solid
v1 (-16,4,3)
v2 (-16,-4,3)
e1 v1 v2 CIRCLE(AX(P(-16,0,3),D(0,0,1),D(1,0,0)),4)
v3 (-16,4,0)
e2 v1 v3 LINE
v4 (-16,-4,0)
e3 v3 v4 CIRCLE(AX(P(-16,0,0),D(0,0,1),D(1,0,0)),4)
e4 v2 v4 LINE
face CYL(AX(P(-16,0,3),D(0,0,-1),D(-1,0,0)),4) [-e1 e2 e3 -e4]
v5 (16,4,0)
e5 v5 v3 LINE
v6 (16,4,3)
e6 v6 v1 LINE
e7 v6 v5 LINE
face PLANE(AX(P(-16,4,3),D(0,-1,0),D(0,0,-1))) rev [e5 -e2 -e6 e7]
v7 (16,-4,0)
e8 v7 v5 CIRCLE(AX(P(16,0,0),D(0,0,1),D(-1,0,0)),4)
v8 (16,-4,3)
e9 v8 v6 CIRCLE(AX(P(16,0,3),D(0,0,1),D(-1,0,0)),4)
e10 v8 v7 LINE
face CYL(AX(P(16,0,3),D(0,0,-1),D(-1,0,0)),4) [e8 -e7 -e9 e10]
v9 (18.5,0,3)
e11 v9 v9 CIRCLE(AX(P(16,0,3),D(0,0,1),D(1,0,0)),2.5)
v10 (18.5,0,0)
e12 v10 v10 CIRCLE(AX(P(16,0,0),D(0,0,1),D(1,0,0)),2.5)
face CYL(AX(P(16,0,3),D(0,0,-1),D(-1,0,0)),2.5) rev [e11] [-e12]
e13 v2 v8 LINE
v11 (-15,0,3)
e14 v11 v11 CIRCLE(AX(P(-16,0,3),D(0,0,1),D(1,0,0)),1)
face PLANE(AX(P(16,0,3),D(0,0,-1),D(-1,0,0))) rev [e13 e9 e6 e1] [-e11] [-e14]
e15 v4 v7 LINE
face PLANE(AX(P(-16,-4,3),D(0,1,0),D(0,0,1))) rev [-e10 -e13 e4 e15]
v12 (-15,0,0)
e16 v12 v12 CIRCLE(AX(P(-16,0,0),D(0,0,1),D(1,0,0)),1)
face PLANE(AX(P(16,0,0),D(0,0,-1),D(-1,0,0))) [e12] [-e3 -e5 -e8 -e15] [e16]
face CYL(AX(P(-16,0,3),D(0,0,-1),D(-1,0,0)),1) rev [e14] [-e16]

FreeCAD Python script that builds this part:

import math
import FreeCAD as App
import Part
import Sketcher
Q = App.Units.Quantity

doc = App.newDocument("Part")
body = doc.addObject("PartDesign::Body", "Body")

# Sketch on XY plane
sketch1 = doc.addObject("Sketcher::SketchObject", "Sketch")
body.addObject(sketch1)
sketch1.AttachmentSupport = (doc.XY_Plane, [""])
sketch1.MapMode = "FlatFace"
sketch1.addGeometry([
    Part.LineSegment(App.Vector(16, 4, 0), App.Vector(-16, 4, 0)),  # 0
    Part.ArcOfCircle(Part.Circle(App.Vector(-16, 0, 0), App.Vector(0, 0, 1), 4), math.radians(90), math.radians(270)),  # 1
    Part.LineSegment(App.Vector(-16, -4, 0), App.Vector(16, -4, 0)),  # 2
    Part.ArcOfCircle(Part.Circle(App.Vector(16, 0, 0), App.Vector(0, 0, 1), 4), math.radians(-90), math.radians(90)),  # 3
    Part.Circle(App.Vector(16, 0, 0), App.Vector(0, 0, 1), 2.5),  # 4
    Part.Circle(App.Vector(-16, 0, 0), App.Vector(0, 0, 1), 1),  # 5
], False)
sketch1.addConstraint([
    Sketcher.Constraint("Tangent", 0, 2, 1, 1),
    Sketcher.Constraint("Tangent", 1, 2, 2, 1),
    Sketcher.Constraint("Tangent", 2, 2, 3, 1),
    Sketcher.Constraint("Tangent", 3, 2, 0, 1),
    Sketcher.Constraint("Horizontal", 0),
    Sketcher.Constraint("Horizontal", 2),
    Sketcher.Constraint("Coincident", 4, 3, 3, 3),
    Sketcher.Constraint("Coincident", 5, 3, 1, 3),
    Sketcher.Constraint("Symmetric", 1, 3, 3, 3, -1, 1),
    Sketcher.Constraint("Diameter", 4, Q("5 mm")),
    Sketcher.Constraint("Diameter", 5, Q("2 mm")),
    Sketcher.Constraint("Radius", 1, Q("4 mm")),
    Sketcher.Constraint("DistanceX", 0, 2, 0, 1, Q("32 mm")),
])
pad1 = doc.addObject("PartDesign::Pad", "Pad")
body.addObject(pad1)
pad1.Profile = sketch1
pad1.Length = 3

doc.recompute()
